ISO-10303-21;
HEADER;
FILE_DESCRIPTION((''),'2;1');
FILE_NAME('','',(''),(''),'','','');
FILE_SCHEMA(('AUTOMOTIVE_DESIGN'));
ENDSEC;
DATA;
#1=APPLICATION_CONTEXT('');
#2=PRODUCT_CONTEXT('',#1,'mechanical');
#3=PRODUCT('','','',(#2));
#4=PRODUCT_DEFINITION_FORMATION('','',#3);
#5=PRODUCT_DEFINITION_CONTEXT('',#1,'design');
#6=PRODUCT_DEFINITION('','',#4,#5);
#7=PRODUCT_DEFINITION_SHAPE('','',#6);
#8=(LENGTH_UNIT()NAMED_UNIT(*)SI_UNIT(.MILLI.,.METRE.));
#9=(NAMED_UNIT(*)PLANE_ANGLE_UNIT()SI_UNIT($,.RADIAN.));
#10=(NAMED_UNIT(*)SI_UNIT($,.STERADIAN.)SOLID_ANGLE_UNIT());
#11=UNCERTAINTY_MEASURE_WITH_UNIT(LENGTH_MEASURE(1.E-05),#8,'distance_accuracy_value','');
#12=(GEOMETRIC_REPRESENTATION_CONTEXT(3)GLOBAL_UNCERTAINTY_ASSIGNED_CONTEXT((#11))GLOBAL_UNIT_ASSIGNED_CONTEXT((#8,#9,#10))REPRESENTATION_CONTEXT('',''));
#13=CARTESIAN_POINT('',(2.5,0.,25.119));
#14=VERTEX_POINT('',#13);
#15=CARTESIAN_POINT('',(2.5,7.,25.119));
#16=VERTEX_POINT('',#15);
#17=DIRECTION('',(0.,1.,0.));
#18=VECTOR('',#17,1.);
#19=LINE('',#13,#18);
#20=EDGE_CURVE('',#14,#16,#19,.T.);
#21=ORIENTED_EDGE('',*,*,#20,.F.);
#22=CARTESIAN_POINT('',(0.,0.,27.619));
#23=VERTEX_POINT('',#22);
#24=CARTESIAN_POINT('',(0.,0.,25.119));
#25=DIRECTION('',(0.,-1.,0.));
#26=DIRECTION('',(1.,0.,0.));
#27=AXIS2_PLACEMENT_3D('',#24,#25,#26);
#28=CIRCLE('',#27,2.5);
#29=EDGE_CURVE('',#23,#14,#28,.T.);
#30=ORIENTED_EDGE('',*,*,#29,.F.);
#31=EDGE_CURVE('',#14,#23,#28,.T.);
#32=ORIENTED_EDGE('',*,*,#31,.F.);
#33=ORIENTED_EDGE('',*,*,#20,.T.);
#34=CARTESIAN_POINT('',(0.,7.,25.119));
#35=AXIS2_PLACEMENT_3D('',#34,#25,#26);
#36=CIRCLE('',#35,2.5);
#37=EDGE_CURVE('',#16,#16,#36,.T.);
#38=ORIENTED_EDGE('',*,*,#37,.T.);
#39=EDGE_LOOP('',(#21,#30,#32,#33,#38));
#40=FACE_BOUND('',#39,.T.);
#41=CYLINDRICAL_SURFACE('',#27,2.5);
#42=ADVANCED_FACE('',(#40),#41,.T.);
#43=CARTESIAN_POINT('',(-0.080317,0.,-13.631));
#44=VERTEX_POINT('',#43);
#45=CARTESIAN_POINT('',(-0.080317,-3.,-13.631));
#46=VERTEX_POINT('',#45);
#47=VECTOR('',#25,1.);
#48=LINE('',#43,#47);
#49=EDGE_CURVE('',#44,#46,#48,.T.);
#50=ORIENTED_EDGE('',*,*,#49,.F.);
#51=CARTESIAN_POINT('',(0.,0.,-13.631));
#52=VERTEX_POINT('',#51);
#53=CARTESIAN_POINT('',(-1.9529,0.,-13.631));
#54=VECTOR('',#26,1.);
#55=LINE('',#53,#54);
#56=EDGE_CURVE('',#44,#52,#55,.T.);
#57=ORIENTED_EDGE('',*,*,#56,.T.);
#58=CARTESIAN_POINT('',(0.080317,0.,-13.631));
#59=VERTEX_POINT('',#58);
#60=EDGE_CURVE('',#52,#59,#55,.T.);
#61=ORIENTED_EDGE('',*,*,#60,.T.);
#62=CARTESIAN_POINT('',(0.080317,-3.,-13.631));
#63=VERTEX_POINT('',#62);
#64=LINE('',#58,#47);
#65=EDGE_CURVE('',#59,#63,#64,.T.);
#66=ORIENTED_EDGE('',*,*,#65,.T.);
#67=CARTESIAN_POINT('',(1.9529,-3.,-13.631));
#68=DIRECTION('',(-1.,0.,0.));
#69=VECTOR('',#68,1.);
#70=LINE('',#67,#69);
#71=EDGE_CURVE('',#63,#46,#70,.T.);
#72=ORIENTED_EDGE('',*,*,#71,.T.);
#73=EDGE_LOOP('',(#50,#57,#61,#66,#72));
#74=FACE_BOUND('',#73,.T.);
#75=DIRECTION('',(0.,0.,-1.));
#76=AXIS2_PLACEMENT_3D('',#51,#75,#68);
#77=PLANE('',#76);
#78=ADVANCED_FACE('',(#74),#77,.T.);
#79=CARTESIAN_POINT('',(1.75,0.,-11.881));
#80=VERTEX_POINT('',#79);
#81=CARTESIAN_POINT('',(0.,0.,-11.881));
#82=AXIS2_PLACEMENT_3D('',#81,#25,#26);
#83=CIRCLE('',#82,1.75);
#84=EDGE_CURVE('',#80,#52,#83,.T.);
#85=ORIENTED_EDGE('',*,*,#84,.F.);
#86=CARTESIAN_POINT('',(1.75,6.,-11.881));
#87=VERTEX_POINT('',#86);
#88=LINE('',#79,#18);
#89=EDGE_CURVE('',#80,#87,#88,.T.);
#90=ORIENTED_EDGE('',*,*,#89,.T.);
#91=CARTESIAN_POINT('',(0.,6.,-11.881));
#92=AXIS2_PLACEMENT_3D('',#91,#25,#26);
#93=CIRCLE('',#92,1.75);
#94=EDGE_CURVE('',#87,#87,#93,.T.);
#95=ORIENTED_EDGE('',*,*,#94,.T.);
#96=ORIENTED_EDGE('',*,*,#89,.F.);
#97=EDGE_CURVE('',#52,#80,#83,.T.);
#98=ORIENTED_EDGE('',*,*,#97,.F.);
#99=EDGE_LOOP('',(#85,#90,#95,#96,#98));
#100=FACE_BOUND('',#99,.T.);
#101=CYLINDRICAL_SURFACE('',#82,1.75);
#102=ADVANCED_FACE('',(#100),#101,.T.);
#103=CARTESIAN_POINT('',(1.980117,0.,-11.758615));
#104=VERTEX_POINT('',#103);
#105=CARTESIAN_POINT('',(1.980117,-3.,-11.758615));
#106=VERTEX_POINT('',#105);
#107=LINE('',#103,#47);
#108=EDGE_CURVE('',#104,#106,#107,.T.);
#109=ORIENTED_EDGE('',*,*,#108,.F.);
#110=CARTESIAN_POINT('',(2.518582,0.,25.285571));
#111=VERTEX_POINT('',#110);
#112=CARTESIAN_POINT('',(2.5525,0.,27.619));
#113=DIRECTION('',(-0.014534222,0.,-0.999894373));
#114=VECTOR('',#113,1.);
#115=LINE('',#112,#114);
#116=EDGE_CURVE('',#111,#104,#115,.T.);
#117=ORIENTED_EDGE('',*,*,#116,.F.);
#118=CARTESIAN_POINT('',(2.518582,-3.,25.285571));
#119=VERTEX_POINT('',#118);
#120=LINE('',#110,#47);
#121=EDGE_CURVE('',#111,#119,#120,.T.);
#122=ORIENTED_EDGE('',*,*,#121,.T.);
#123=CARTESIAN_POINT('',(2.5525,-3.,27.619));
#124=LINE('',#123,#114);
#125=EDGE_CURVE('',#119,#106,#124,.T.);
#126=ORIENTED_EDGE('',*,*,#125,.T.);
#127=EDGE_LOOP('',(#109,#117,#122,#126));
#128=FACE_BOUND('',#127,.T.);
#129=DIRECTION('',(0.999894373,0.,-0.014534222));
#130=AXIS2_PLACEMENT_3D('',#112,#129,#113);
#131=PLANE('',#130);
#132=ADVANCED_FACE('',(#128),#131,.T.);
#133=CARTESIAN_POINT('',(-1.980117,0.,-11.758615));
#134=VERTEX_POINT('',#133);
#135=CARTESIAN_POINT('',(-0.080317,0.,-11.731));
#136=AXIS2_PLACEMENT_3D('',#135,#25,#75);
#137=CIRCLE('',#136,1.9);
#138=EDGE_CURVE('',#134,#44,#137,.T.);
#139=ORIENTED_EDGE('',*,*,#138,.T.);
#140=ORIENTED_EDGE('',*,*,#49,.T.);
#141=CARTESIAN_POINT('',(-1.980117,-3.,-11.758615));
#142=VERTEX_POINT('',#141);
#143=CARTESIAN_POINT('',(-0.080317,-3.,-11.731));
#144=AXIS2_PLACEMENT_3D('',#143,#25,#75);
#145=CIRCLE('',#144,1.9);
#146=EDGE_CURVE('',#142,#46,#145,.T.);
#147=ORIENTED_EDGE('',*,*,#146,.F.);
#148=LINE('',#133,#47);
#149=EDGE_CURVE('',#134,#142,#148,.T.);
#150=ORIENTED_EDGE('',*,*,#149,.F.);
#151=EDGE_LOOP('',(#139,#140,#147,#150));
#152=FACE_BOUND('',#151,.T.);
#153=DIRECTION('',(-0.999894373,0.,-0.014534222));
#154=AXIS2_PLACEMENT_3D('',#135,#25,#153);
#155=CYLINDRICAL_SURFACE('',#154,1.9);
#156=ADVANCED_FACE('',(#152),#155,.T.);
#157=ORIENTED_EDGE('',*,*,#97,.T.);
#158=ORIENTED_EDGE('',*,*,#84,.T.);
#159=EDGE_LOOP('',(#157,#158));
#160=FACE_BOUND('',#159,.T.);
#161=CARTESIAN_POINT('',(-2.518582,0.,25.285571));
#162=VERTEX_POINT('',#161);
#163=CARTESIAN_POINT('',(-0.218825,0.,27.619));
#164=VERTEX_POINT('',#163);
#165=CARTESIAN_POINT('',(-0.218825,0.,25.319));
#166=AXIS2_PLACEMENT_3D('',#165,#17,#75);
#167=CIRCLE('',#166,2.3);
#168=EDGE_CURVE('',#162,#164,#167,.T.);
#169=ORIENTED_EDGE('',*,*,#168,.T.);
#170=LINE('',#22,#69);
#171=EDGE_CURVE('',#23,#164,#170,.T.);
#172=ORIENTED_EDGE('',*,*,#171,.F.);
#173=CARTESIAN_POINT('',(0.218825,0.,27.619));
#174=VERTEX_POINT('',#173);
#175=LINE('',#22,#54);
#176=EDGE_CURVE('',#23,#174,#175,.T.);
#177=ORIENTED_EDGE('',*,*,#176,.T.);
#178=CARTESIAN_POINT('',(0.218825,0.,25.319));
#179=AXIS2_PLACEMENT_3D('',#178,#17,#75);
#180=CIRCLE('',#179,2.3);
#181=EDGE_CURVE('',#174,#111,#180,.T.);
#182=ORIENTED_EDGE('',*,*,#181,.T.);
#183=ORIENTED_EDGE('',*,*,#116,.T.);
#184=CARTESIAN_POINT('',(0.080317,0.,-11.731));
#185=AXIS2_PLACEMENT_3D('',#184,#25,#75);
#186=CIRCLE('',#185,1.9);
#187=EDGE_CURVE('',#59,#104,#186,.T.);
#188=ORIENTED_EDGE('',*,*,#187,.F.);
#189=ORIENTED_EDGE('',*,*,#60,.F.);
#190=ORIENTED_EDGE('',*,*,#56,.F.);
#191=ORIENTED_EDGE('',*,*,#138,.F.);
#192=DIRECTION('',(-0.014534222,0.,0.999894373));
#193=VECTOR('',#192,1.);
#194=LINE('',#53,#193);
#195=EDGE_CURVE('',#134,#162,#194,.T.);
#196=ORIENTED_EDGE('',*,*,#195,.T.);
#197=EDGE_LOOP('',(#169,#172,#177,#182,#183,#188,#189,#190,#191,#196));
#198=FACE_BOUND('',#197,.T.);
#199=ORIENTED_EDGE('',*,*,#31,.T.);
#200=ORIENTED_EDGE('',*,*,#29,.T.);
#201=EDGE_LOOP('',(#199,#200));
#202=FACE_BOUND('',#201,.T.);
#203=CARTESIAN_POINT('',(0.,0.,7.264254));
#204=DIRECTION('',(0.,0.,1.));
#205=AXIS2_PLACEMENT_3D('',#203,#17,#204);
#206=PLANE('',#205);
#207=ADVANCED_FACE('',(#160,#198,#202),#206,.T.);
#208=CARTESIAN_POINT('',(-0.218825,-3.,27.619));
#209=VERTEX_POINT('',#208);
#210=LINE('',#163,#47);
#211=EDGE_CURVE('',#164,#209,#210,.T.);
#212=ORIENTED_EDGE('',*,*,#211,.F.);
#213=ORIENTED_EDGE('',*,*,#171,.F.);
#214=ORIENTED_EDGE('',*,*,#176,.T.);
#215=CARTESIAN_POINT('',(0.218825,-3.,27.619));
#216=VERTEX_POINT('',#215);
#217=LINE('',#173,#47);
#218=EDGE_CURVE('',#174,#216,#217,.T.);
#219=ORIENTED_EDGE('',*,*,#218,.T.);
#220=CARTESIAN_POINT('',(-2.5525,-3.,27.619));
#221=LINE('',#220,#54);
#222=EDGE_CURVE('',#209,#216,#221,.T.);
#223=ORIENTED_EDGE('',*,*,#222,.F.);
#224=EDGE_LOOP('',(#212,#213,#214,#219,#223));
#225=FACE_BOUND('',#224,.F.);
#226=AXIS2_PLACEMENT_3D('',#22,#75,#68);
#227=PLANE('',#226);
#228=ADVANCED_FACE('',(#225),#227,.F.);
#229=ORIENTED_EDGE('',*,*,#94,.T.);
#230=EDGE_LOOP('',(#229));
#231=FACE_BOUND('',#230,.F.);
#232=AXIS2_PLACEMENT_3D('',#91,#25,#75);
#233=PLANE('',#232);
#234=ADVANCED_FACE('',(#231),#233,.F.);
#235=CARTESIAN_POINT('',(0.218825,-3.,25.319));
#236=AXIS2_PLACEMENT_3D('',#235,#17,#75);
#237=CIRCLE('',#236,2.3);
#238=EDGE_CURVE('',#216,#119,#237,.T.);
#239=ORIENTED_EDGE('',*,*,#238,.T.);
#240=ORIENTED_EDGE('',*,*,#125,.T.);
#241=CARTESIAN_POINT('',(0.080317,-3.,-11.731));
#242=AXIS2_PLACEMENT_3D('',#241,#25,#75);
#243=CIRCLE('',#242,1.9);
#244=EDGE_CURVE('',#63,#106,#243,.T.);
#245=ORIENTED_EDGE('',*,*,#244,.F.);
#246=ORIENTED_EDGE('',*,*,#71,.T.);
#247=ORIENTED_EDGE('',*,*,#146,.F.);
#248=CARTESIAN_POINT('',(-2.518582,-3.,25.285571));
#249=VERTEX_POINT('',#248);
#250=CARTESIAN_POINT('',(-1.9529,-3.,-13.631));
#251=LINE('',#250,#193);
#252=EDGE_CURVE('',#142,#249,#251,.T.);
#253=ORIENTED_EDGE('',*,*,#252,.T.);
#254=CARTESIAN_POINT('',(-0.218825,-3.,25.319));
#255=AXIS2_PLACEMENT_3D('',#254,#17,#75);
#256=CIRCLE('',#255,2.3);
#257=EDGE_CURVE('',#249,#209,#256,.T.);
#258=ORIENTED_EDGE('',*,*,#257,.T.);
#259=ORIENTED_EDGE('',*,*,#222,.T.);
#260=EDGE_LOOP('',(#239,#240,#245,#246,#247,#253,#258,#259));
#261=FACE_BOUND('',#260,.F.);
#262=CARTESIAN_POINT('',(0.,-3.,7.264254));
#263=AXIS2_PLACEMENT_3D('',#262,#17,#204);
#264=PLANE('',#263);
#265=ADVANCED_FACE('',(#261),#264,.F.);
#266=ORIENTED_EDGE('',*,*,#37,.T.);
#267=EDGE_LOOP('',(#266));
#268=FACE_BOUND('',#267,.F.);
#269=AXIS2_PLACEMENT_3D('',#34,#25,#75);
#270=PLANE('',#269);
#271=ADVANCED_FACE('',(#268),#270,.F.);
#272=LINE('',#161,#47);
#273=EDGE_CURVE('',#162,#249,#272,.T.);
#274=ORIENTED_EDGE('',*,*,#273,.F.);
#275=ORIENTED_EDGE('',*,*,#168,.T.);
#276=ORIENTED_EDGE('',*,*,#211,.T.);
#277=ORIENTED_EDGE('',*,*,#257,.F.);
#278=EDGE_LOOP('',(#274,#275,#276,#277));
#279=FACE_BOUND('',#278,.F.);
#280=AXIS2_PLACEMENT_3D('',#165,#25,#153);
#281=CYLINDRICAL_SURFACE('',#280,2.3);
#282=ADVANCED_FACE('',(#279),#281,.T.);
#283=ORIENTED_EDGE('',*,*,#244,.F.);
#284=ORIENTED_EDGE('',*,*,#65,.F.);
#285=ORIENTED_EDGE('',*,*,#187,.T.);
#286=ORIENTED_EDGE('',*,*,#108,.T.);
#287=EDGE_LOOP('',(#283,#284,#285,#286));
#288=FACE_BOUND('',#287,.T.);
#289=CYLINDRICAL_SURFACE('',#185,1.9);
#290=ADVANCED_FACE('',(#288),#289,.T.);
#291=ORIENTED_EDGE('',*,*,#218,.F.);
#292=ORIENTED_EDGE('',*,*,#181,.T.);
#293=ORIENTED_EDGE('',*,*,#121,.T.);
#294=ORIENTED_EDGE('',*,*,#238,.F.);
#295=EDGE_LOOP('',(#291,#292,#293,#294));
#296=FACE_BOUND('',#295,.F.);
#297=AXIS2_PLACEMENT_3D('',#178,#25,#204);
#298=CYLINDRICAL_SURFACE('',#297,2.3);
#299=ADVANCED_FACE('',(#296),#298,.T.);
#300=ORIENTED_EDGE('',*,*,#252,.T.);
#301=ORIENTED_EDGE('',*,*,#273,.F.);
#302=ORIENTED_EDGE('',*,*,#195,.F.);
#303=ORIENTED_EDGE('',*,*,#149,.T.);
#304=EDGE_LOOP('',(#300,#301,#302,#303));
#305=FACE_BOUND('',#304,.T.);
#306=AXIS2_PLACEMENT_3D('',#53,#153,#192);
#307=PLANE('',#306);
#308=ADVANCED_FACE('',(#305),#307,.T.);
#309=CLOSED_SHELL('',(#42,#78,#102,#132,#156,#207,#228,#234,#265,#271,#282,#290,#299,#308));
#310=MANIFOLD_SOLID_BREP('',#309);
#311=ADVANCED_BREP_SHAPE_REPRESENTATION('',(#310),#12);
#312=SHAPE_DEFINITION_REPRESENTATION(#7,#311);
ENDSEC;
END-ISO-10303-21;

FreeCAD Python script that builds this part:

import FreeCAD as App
import Part
import Sketcher
Q = App.Units.Quantity


def edges_at(feature, points):
    """Names of the edges that pass closest to the given points."""
    edges = feature.Shape.Edges
    near = lambda p: min(range(len(edges)), key=lambda i: edges[i].distToShape(Part.Vertex(*p))[0])
    return sorted({f"Edge{near(p) + 1}" for p in points})


def add_polygon(sketch, points):
    """Adds a closed chain of lines whose ends are joined by coincident constraints."""
    first, n = sketch.GeometryCount, len(points)
    for a, b in zip(points, points[1:] + points[:1]):
        sketch.addGeometry(Part.LineSegment(App.Vector(*a, 0), App.Vector(*b, 0)), False)
    for i in range(n):
        sketch.addConstraint(Sketcher.Constraint("Coincident", first + i, 2, first + (i + 1) % n, 1))

doc = App.newDocument("Part")
body = doc.addObject("PartDesign::Body", "Body")

# Sketch on XZ plane
sketch1 = doc.addObject("Sketcher::SketchObject", "Sketch")
body.addObject(sketch1)
sketch1.AttachmentSupport = (doc.XZ_Plane, [""])
sketch1.MapMode = "FlatFace"
add_polygon(sketch1, [(-2.5525, 27.619), (-1.9529, -13.631), (1.9529, -13.631), (2.5525, 27.619)])  # lines 0-3
sketch1.addConstraint(Sketcher.Constraint("Horizontal", 1))
sketch1.addConstraint(Sketcher.Constraint("Horizontal", 3))
sketch1.addConstraint(Sketcher.Constraint("Equal", 0, 2))
sketch1.addConstraint(Sketcher.Constraint("DistanceX", 3, 2, 3, 1, Q("5.105 mm")))
sketch1.addConstraint(Sketcher.Constraint("DistanceY", 1, 2, 2, 2, Q("41.25 mm")))
sketch1.addConstraint(Sketcher.Constraint("DistanceX", 1, 1, 1, 2, Q("3.9058 mm")))
sketch1.addConstraint(Sketcher.Constraint("DistanceX", 0, 2, -1, 1, Q("1.953 mm")))
sketch1.addConstraint(Sketcher.Constraint("DistanceY", 0, 2, -1, 1, Q("13.631 mm")))
pad1 = doc.addObject("PartDesign::Pad", "Pad")
body.addObject(pad1)
pad1.Profile = sketch1
pad1.Length = 3

# Sketch on XZ plane
sketch2 = doc.addObject("Sketcher::SketchObject", "Sketch001")
body.addObject(sketch2)
sketch2.AttachmentSupport = (doc.XZ_Plane, [""])
sketch2.MapMode = "FlatFace"
sketch2.addGeometry(Part.Circle(App.Vector(0, 25.119, 0), App.Vector(0, 0, 1), 2.5), False)
sketch2.addConstraint(Sketcher.Constraint("PointOnObject", 0, 3, -2))
sketch2.addConstraint(Sketcher.Constraint("Diameter", 0, Q("5 mm")))
sketch2.addConstraint(Sketcher.Constraint("DistanceY", -1, 1, 0, 3, Q("25.119 mm")))
pad2 = doc.addObject("PartDesign::Pad", "Pad001")
body.addObject(pad2)
pad2.Profile = sketch2
pad2.Length = 7
pad2.Reversed = True

# Sketch on XZ plane
sketch3 = doc.addObject("Sketcher::SketchObject", "Sketch002")
body.addObject(sketch3)
sketch3.AttachmentSupport = (doc.XZ_Plane, [""])
sketch3.MapMode = "FlatFace"
sketch3.addGeometry(Part.Circle(App.Vector(0, -11.881, 0), App.Vector(0, 0, 1), 1.75), False)
sketch3.addConstraint(Sketcher.Constraint("PointOnObject", 0, 3, -2))
sketch3.addConstraint(Sketcher.Constraint("Diameter", 0, Q("3.5 mm")))
sketch3.addConstraint(Sketcher.Constraint("DistanceY", 0, 3, -1, 1, Q("11.881 mm")))
pad3 = doc.addObject("PartDesign::Pad", "Pad002")
body.addObject(pad3)
pad3.Profile = sketch3
pad3.Length = 6
pad3.Reversed = True
doc.recompute()

fillet = doc.addObject("PartDesign::Fillet", "Fillet")
body.addObject(fillet)
fillet.Base = (pad3, edges_at(pad3, [(2.553, -1.5, 27.619), (-2.553, -1.5, 27.619)]))
fillet.Radius = 2.3
doc.recompute()

fillet2 = doc.addObject("PartDesign::Fillet", "Fillet001")
body.addObject(fillet2)
fillet2.Base = (fillet, edges_at(fillet, [(1.953, -1.5, -13.631), (-1.953, -1.5, -13.631)]))
fillet2.Radius = 1.9

doc.recompute()
